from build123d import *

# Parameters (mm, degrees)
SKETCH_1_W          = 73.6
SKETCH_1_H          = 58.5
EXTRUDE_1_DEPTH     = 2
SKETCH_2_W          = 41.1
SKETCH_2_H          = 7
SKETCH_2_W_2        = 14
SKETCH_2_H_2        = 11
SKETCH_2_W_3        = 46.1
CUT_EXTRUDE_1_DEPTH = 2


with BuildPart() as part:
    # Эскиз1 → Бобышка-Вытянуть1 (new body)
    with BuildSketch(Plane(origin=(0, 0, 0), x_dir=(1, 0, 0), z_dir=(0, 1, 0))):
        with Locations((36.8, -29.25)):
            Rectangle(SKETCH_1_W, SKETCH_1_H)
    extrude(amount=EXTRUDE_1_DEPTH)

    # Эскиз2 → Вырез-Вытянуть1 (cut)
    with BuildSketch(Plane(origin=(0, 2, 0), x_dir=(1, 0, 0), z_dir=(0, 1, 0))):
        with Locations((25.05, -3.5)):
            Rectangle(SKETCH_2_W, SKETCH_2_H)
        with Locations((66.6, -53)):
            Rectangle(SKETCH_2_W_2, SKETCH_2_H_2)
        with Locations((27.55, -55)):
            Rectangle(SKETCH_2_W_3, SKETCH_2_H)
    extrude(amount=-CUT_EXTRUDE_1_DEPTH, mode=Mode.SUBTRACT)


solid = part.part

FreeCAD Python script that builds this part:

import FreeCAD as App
import Part
import Sketcher

doc = App.newDocument("Part")
body = doc.addObject("PartDesign::Body", "Body")

sketch1 = body.newObject("Sketcher::SketchObject", "Sketch")
sketch1.AttachmentSupport = (doc.getObject("XZ_Plane"), [""])
sketch1.MapMode = "FlatFace"
sketch1.addGeometry([
    Part.LineSegment(App.Vector(0, 0, 0), App.Vector(0, 58, 0)),
    Part.LineSegment(App.Vector(0, 58, 0), App.Vector(74, 58, 0)),
    Part.LineSegment(App.Vector(74, 58, 0), App.Vector(74, 0, 0)),
    Part.LineSegment(App.Vector(74, 0, 0), App.Vector(0, 0, 0)),
], False)
sketch1.addConstraint([
    Sketcher.Constraint("Coincident", 0, 2, 1, 1),
    Sketcher.Constraint("Coincident", 1, 2, 2, 1),
    Sketcher.Constraint("Coincident", 2, 2, 3, 1),
    Sketcher.Constraint("Coincident", 3, 2, 0, 1),
    Sketcher.Constraint("Vertical", 0),
    Sketcher.Constraint("Horizontal", 1),
    Sketcher.Constraint("Vertical", 2),
    Sketcher.Constraint("Horizontal", 3),
    Sketcher.Constraint("Coincident", 3, 2, -1, 1),
    Sketcher.Constraint("DistanceX", 1, 1, 1, 2, 73.6),
    Sketcher.Constraint("DistanceY", 0, 1, 0, 2, 58.5),
])
pad1 = body.newObject("PartDesign::Pad", "Pad")
pad1.Profile = sketch1
pad1.Length = 2
pad1.Reversed = True

sketch2 = body.newObject("Sketcher::SketchObject", "Sketch001")
sketch2.AttachmentSupport = (doc.getObject("XZ_Plane"), [""])
sketch2.MapMode = "FlatFace"
sketch2.AttachmentOffset = App.Placement(App.Vector(0, 0, -2), App.Rotation())
sketch2.addGeometry([
    Part.LineSegment(App.Vector(4, 0, 0), App.Vector(4, 7, 0)),
    Part.LineSegment(App.Vector(4, 7, 0), App.Vector(46, 7, 0)),
    Part.LineSegment(App.Vector(46, 7, 0), App.Vector(46, 0, 0)),
    Part.LineSegment(App.Vector(46, 0, 0), App.Vector(4, 0, 0)),
    Part.LineSegment(App.Vector(60, 48, 0), App.Vector(60, 58, 0)),
    Part.LineSegment(App.Vector(60, 58, 0), App.Vector(74, 58, 0)),
    Part.LineSegment(App.Vector(74, 58, 0), App.Vector(74, 48, 0)),
    Part.LineSegment(App.Vector(74, 48, 0), App.Vector(60, 48, 0)),
    Part.LineSegment(App.Vector(4, 52, 0), App.Vector(4, 58, 0)),
    Part.LineSegment(App.Vector(4, 58, 0), App.Vector(51, 58, 0)),
    Part.LineSegment(App.Vector(51, 58, 0), App.Vector(51, 52, 0)),
    Part.LineSegment(App.Vector(51, 52, 0), App.Vector(4, 52, 0)),
], False)
sketch2.addConstraint([
    Sketcher.Constraint("Coincident", 0, 2, 1, 1),
    Sketcher.Constraint("Coincident", 1, 2, 2, 1),
    Sketcher.Constraint("Coincident", 2, 2, 3, 1),
    Sketcher.Constraint("Coincident", 3, 2, 0, 1),
    Sketcher.Constraint("Coincident", 4, 2, 5, 1),
    Sketcher.Constraint("Coincident", 5, 2, 6, 1),
    Sketcher.Constraint("Coincident", 6, 2, 7, 1),
    Sketcher.Constraint("Coincident", 7, 2, 4, 1),
    Sketcher.Constraint("Coincident", 8, 2, 9, 1),
    Sketcher.Constraint("Coincident", 9, 2, 10, 1),
    Sketcher.Constraint("Coincident", 10, 2, 11, 1),
    Sketcher.Constraint("Coincident", 11, 2, 8, 1),
    Sketcher.Constraint("Vertical", 0),
    Sketcher.Constraint("Horizontal", 1),
    Sketcher.Constraint("Vertical", 2),
    Sketcher.Constraint("Horizontal", 3),
    Sketcher.Constraint("Vertical", 4),
    Sketcher.Constraint("Horizontal", 5),
    Sketcher.Constraint("Vertical", 6),
    Sketcher.Constraint("Horizontal", 7),
    Sketcher.Constraint("Vertical", 8),
    Sketcher.Constraint("Horizontal", 9),
    Sketcher.Constraint("Vertical", 10),
    Sketcher.Constraint("Horizontal", 11),
    Sketcher.Constraint("PointOnObject", 2, 2, -1),
    Sketcher.Constraint("Horizontal", 5, 2, 8, 2),
    Sketcher.Constraint("Vertical", 3, 2, 8, 2),
    Sketcher.Constraint("Equal", 2, 8),
    Sketcher.Constraint("DistanceX", 5, 1, 5, 2, 14.0),
    Sketcher.Constraint("DistanceY", 0, 1, 0, 2, 7.0),
    Sketcher.Constraint("DistanceY", 4, 1, 4, 2, 11.0),
    Sketcher.Constraint("DistanceX", 1, 1, 1, 2, 41.1),
    Sketcher.Constraint("DistanceX", 9, 1, 9, 2, 46.1),
    Sketcher.Constraint("DistanceX", 1, 2, 4, 2, 14.0),
    Sketcher.Constraint("DistanceX", -1, 1, 0, 2, 4.5),
    Sketcher.Constraint("DistanceY", -1, 1, 4, 2, 58.5),
])
pocket1 = body.newObject("PartDesign::Pocket", "Pocket")
pocket1.Profile = sketch2
pocket1.Length = 2
pocket1.Reversed = True

doc.recompute()
